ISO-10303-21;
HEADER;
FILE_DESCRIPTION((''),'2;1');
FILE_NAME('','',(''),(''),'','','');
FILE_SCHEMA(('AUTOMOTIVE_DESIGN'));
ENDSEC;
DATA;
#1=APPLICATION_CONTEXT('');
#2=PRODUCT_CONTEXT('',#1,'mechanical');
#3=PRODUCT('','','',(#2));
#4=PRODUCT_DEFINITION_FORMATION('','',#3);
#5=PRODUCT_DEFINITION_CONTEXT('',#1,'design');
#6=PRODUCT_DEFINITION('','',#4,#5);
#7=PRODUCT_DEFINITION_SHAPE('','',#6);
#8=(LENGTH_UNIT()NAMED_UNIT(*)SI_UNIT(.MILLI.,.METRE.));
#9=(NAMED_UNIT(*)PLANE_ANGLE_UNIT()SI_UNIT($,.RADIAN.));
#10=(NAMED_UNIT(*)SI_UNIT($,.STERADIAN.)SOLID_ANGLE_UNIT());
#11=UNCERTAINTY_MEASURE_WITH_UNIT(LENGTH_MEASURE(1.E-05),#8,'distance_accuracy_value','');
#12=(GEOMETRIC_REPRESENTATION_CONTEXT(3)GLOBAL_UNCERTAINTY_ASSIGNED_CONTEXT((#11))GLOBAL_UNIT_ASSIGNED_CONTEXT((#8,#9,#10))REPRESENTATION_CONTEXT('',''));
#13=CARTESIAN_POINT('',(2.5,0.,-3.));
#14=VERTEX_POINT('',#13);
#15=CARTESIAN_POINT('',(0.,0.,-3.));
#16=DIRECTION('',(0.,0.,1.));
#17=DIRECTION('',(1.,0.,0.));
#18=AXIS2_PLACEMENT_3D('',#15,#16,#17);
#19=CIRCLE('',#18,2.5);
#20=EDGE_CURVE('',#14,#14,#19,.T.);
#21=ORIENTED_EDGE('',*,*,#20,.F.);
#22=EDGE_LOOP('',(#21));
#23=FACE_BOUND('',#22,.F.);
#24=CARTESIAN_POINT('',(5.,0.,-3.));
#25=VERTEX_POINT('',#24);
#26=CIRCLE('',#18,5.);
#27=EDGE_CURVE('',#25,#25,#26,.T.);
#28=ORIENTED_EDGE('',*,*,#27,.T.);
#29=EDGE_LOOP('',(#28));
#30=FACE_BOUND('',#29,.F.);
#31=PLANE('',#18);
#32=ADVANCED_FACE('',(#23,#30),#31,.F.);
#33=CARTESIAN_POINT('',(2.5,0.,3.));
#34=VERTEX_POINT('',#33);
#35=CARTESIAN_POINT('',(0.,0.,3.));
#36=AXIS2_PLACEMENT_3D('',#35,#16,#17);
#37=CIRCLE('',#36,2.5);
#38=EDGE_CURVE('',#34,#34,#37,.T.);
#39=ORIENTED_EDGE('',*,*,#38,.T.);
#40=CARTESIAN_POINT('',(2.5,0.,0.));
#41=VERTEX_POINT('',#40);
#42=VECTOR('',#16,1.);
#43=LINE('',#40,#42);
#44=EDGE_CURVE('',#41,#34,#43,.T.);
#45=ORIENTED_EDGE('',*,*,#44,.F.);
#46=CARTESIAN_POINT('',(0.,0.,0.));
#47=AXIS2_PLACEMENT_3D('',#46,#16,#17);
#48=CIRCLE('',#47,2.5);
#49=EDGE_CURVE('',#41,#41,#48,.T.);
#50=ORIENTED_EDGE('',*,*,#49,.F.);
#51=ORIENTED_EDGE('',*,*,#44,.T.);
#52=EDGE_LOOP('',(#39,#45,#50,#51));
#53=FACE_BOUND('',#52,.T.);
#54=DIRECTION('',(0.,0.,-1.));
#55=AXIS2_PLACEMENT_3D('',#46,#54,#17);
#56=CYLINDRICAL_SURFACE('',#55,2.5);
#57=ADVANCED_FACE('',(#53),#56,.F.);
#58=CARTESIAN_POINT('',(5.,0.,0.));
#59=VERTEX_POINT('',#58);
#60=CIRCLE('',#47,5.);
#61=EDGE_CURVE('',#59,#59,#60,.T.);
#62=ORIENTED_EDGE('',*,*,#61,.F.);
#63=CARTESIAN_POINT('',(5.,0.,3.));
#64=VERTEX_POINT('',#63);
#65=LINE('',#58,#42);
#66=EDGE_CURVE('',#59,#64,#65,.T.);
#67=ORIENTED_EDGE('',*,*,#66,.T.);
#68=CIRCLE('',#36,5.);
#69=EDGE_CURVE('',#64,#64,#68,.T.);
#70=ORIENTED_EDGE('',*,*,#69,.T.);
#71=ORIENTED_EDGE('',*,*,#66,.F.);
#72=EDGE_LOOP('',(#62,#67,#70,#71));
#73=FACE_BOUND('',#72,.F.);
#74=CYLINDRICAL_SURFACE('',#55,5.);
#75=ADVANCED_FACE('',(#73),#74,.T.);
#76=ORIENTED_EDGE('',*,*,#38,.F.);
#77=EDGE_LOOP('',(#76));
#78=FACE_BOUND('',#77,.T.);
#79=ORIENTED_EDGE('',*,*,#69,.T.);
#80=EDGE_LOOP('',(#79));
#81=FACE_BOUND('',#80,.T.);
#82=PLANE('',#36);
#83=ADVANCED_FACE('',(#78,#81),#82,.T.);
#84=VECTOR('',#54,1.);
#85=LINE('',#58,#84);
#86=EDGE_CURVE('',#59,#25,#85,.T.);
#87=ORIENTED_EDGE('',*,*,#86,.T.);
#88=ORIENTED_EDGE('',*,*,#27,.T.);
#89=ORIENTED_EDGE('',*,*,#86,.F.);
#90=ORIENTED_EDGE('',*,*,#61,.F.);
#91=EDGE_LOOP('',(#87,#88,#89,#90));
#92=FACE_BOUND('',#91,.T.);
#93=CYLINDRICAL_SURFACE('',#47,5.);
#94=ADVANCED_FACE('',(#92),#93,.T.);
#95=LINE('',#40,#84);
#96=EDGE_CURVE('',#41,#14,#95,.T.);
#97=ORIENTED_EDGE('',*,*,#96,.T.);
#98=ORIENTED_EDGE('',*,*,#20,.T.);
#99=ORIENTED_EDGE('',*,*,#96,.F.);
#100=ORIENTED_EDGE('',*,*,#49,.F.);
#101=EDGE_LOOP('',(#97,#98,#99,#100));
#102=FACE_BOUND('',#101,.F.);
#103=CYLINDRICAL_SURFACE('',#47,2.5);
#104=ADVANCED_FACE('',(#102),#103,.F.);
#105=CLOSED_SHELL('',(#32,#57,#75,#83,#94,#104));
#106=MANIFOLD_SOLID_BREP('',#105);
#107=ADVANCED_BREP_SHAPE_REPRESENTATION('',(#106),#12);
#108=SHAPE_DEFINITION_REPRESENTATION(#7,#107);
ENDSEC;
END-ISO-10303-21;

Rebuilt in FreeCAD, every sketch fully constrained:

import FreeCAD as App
import Part
import Sketcher

V = App.Vector

doc = App.newDocument("Part")
params = doc.addObject("Spreadsheet::Sheet", "Params")
for row, (alias, value) in enumerate([
    ("sketch1_diameter", "10 mm"),
    ("sketch1_diameter2", "5 mm"),
    ("pad1_length", "6 mm"),
], start=1):
    params.set(f"A{row}", alias)
    params.set(f"B{row}", "=" + value)
    params.setAlias(f"B{row}", alias)

body = doc.addObject("PartDesign::Body", "Body")

# Sketch on XY plane
sketch1 = body.newObject("Sketcher::SketchObject", "Sketch")
sketch1.AttachmentSupport = (doc.getObject("XY_Plane"), [""])
sketch1.MapMode = "FlatFace"
sketch1.addGeometry([
    Part.Circle(V(0, 0, 0), V(0, 0, 1), 5),
    Part.Circle(V(0, 0, 0), V(0, 0, 1), 2.5),
], False)
sketch1.addConstraint([
    Sketcher.Constraint("Coincident", 0, 3, -1, 1),
    Sketcher.Constraint("Coincident", 1, 3, -1, 1),
    Sketcher.Constraint("Diameter", 0, 10.0),
    Sketcher.Constraint("Diameter", 1, 5.0),
])
sketch1.setExpression("Constraints[2]", "Params.sketch1_diameter")
sketch1.setExpression("Constraints[3]", "Params.sketch1_diameter2")
pad1 = body.newObject("PartDesign::Pad", "Pad")
pad1.Profile = sketch1
pad1.setExpression("Length", "Params.pad1_length")
pad1.Midplane = True

doc.recompute()
